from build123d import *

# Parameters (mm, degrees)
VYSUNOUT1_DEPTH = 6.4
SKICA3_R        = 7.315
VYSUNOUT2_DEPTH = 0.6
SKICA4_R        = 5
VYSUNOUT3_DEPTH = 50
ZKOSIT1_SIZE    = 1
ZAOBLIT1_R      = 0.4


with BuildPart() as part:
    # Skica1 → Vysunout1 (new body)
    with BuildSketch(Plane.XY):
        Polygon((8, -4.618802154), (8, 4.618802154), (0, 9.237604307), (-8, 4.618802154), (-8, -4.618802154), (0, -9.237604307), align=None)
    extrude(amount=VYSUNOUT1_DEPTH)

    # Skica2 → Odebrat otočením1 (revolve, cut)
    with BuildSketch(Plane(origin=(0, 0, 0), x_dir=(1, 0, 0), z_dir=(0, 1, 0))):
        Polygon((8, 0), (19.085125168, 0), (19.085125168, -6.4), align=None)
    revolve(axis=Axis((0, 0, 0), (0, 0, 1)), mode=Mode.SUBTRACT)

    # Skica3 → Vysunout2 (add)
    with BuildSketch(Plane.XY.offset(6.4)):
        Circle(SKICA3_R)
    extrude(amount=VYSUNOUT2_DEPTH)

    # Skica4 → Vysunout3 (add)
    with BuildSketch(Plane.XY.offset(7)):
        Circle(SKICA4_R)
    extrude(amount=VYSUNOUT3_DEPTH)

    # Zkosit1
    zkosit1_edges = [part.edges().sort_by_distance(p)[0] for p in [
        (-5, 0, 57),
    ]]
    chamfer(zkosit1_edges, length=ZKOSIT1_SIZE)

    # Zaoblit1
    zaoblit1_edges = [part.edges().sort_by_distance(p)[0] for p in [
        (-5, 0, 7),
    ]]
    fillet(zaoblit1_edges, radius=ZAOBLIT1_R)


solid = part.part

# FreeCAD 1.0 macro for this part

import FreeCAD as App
import Part
import Sketcher
Q = App.Units.Quantity


def edges_at(feature, points):
    """Names of the edges that pass closest to the given points."""
    edges = feature.Shape.Edges
    near = lambda p: min(range(len(edges)), key=lambda i: edges[i].distToShape(Part.Vertex(*p))[0])
    return sorted({f"Edge{near(p) + 1}" for p in points})


def add_polygon(sketch, points):
    """Adds a closed chain of lines whose ends are joined by coincident constraints."""
    first, n = sketch.GeometryCount, len(points)
    for a, b in zip(points, points[1:] + points[:1]):
        sketch.addGeometry(Part.LineSegment(App.Vector(*a, 0), App.Vector(*b, 0)), False)
    for i in range(n):
        sketch.addConstraint(Sketcher.Constraint("Coincident", first + i, 2, first + (i + 1) % n, 1))

doc = App.newDocument("Part")
body = doc.addObject("PartDesign::Body", "Body")

sketch1 = doc.addObject("Sketcher::SketchObject", "Sketch")
body.addObject(sketch1)
sketch1.AttachmentSupport = (doc.XY_Plane, [""])
sketch1.MapMode = "FlatFace"
add_polygon(sketch1, [(8, -5), (8, 5), (0, 9), (-8, 5), (-8, -5), (0, -9)])
sketch1.addConstraint(Sketcher.Constraint("Vertical", 0))
sketch1.addConstraint(Sketcher.Constraint("Vertical", 3))
sketch1.addConstraint(Sketcher.Constraint("Symmetric", 0, 2, 3, 2, -1, 1))
sketch1.addConstraint(Sketcher.Constraint("Symmetric", 1, 2, 4, 2, -1, 1))
sketch1.addConstraint(Sketcher.Constraint("PointOnObject", 1, 2, -2))
sketch1.addConstraint(Sketcher.Constraint("Parallel", 2, 5))
sketch1.addConstraint(Sketcher.Constraint("Horizontal", 0, 2, 2, 2))
sketch1.addConstraint(Sketcher.Constraint("Angle", 1, Q("150 deg")))
sketch1.addConstraint(Sketcher.Constraint("DistanceX", -1, 1, 0, 2, 8.0))
sketch1.addConstraint(Sketcher.Constraint("DistanceY", 0, 1, 0, 2, 9.237604))
pad1 = doc.addObject("PartDesign::Pad", "Pad")
body.addObject(pad1)
pad1.Profile = sketch1
pad1.Length = 6.4

sketch2 = doc.addObject("Sketcher::SketchObject", "Sketch001")
body.addObject(sketch2)
sketch2.AttachmentSupport = (doc.XZ_Plane, [""])
sketch2.MapMode = "FlatFace"
add_polygon(sketch2, [(19, 0), (8, 0), (19, 6)])
sketch2.addConstraint(Sketcher.Constraint("Horizontal", 0))
sketch2.addConstraint(Sketcher.Constraint("Vertical", 2))
sketch2.addConstraint(Sketcher.Constraint("PointOnObject", 0, 2, -1))
sketch2.addConstraint(Sketcher.Constraint("Angle", 1, Q("30 deg")))
sketch2.addConstraint(Sketcher.Constraint("DistanceY", 2, 2, 2, 1, 6.4))
sketch2.addConstraint(Sketcher.Constraint("DistanceX", -1, 1, 0, 2, 8.0))
groove = doc.addObject("PartDesign::Groove", "Groove")
body.addObject(groove)
groove.Profile = sketch2
groove.ReferenceAxis = (sketch2, ["V_Axis"])
groove.Angle = 360

sketch3 = doc.addObject("Sketcher::SketchObject", "Sketch002")
body.addObject(sketch3)
sketch3.AttachmentSupport = (doc.XY_Plane, [""])
sketch3.MapMode = "FlatFace"
sketch3.AttachmentOffset = App.Placement(App.Vector(0, 0, 6.4), App.Rotation())
sketch3.addGeometry(Part.Circle(App.Vector(0, 0, 0), App.Vector(0, 0, 1), 7), False)
sketch3.addConstraint(Sketcher.Constraint("Coincident", 0, 3, -1, 1))
sketch3.addConstraint(Sketcher.Constraint("Diameter", 0, 14.63))
pad2 = doc.addObject("PartDesign::Pad", "Pad001")
body.addObject(pad2)
pad2.Profile = sketch3
pad2.Length = 0.6

sketch4 = doc.addObject("Sketcher::SketchObject", "Sketch003")
body.addObject(sketch4)
sketch4.AttachmentSupport = (doc.XY_Plane, [""])
sketch4.MapMode = "FlatFace"
sketch4.AttachmentOffset = App.Placement(App.Vector(0, 0, 7), App.Rotation())
sketch4.addGeometry(Part.Circle(App.Vector(0, 0, 0), App.Vector(0, 0, 1), 5), False)
sketch4.addConstraint(Sketcher.Constraint("Coincident", 0, 3, -1, 1))
sketch4.addConstraint(Sketcher.Constraint("Diameter", 0, 10.0))
pad3 = doc.addObject("PartDesign::Pad", "Pad002")
body.addObject(pad3)
pad3.Profile = sketch4
pad3.Length = 50
doc.recompute()

chamfer = doc.addObject("PartDesign::Chamfer", "Chamfer")
body.addObject(chamfer)
chamfer.Base = (pad3, edges_at(pad3, [(-5, 0, 57)]))
chamfer.Size = 1
doc.recompute()

fillet = doc.addObject("PartDesign::Fillet", "Fillet")
body.addObject(fillet)
fillet.Base = (chamfer, edges_at(chamfer, [(-5, 0, 7)]))
fillet.Radius = 0.4

doc.recompute()
